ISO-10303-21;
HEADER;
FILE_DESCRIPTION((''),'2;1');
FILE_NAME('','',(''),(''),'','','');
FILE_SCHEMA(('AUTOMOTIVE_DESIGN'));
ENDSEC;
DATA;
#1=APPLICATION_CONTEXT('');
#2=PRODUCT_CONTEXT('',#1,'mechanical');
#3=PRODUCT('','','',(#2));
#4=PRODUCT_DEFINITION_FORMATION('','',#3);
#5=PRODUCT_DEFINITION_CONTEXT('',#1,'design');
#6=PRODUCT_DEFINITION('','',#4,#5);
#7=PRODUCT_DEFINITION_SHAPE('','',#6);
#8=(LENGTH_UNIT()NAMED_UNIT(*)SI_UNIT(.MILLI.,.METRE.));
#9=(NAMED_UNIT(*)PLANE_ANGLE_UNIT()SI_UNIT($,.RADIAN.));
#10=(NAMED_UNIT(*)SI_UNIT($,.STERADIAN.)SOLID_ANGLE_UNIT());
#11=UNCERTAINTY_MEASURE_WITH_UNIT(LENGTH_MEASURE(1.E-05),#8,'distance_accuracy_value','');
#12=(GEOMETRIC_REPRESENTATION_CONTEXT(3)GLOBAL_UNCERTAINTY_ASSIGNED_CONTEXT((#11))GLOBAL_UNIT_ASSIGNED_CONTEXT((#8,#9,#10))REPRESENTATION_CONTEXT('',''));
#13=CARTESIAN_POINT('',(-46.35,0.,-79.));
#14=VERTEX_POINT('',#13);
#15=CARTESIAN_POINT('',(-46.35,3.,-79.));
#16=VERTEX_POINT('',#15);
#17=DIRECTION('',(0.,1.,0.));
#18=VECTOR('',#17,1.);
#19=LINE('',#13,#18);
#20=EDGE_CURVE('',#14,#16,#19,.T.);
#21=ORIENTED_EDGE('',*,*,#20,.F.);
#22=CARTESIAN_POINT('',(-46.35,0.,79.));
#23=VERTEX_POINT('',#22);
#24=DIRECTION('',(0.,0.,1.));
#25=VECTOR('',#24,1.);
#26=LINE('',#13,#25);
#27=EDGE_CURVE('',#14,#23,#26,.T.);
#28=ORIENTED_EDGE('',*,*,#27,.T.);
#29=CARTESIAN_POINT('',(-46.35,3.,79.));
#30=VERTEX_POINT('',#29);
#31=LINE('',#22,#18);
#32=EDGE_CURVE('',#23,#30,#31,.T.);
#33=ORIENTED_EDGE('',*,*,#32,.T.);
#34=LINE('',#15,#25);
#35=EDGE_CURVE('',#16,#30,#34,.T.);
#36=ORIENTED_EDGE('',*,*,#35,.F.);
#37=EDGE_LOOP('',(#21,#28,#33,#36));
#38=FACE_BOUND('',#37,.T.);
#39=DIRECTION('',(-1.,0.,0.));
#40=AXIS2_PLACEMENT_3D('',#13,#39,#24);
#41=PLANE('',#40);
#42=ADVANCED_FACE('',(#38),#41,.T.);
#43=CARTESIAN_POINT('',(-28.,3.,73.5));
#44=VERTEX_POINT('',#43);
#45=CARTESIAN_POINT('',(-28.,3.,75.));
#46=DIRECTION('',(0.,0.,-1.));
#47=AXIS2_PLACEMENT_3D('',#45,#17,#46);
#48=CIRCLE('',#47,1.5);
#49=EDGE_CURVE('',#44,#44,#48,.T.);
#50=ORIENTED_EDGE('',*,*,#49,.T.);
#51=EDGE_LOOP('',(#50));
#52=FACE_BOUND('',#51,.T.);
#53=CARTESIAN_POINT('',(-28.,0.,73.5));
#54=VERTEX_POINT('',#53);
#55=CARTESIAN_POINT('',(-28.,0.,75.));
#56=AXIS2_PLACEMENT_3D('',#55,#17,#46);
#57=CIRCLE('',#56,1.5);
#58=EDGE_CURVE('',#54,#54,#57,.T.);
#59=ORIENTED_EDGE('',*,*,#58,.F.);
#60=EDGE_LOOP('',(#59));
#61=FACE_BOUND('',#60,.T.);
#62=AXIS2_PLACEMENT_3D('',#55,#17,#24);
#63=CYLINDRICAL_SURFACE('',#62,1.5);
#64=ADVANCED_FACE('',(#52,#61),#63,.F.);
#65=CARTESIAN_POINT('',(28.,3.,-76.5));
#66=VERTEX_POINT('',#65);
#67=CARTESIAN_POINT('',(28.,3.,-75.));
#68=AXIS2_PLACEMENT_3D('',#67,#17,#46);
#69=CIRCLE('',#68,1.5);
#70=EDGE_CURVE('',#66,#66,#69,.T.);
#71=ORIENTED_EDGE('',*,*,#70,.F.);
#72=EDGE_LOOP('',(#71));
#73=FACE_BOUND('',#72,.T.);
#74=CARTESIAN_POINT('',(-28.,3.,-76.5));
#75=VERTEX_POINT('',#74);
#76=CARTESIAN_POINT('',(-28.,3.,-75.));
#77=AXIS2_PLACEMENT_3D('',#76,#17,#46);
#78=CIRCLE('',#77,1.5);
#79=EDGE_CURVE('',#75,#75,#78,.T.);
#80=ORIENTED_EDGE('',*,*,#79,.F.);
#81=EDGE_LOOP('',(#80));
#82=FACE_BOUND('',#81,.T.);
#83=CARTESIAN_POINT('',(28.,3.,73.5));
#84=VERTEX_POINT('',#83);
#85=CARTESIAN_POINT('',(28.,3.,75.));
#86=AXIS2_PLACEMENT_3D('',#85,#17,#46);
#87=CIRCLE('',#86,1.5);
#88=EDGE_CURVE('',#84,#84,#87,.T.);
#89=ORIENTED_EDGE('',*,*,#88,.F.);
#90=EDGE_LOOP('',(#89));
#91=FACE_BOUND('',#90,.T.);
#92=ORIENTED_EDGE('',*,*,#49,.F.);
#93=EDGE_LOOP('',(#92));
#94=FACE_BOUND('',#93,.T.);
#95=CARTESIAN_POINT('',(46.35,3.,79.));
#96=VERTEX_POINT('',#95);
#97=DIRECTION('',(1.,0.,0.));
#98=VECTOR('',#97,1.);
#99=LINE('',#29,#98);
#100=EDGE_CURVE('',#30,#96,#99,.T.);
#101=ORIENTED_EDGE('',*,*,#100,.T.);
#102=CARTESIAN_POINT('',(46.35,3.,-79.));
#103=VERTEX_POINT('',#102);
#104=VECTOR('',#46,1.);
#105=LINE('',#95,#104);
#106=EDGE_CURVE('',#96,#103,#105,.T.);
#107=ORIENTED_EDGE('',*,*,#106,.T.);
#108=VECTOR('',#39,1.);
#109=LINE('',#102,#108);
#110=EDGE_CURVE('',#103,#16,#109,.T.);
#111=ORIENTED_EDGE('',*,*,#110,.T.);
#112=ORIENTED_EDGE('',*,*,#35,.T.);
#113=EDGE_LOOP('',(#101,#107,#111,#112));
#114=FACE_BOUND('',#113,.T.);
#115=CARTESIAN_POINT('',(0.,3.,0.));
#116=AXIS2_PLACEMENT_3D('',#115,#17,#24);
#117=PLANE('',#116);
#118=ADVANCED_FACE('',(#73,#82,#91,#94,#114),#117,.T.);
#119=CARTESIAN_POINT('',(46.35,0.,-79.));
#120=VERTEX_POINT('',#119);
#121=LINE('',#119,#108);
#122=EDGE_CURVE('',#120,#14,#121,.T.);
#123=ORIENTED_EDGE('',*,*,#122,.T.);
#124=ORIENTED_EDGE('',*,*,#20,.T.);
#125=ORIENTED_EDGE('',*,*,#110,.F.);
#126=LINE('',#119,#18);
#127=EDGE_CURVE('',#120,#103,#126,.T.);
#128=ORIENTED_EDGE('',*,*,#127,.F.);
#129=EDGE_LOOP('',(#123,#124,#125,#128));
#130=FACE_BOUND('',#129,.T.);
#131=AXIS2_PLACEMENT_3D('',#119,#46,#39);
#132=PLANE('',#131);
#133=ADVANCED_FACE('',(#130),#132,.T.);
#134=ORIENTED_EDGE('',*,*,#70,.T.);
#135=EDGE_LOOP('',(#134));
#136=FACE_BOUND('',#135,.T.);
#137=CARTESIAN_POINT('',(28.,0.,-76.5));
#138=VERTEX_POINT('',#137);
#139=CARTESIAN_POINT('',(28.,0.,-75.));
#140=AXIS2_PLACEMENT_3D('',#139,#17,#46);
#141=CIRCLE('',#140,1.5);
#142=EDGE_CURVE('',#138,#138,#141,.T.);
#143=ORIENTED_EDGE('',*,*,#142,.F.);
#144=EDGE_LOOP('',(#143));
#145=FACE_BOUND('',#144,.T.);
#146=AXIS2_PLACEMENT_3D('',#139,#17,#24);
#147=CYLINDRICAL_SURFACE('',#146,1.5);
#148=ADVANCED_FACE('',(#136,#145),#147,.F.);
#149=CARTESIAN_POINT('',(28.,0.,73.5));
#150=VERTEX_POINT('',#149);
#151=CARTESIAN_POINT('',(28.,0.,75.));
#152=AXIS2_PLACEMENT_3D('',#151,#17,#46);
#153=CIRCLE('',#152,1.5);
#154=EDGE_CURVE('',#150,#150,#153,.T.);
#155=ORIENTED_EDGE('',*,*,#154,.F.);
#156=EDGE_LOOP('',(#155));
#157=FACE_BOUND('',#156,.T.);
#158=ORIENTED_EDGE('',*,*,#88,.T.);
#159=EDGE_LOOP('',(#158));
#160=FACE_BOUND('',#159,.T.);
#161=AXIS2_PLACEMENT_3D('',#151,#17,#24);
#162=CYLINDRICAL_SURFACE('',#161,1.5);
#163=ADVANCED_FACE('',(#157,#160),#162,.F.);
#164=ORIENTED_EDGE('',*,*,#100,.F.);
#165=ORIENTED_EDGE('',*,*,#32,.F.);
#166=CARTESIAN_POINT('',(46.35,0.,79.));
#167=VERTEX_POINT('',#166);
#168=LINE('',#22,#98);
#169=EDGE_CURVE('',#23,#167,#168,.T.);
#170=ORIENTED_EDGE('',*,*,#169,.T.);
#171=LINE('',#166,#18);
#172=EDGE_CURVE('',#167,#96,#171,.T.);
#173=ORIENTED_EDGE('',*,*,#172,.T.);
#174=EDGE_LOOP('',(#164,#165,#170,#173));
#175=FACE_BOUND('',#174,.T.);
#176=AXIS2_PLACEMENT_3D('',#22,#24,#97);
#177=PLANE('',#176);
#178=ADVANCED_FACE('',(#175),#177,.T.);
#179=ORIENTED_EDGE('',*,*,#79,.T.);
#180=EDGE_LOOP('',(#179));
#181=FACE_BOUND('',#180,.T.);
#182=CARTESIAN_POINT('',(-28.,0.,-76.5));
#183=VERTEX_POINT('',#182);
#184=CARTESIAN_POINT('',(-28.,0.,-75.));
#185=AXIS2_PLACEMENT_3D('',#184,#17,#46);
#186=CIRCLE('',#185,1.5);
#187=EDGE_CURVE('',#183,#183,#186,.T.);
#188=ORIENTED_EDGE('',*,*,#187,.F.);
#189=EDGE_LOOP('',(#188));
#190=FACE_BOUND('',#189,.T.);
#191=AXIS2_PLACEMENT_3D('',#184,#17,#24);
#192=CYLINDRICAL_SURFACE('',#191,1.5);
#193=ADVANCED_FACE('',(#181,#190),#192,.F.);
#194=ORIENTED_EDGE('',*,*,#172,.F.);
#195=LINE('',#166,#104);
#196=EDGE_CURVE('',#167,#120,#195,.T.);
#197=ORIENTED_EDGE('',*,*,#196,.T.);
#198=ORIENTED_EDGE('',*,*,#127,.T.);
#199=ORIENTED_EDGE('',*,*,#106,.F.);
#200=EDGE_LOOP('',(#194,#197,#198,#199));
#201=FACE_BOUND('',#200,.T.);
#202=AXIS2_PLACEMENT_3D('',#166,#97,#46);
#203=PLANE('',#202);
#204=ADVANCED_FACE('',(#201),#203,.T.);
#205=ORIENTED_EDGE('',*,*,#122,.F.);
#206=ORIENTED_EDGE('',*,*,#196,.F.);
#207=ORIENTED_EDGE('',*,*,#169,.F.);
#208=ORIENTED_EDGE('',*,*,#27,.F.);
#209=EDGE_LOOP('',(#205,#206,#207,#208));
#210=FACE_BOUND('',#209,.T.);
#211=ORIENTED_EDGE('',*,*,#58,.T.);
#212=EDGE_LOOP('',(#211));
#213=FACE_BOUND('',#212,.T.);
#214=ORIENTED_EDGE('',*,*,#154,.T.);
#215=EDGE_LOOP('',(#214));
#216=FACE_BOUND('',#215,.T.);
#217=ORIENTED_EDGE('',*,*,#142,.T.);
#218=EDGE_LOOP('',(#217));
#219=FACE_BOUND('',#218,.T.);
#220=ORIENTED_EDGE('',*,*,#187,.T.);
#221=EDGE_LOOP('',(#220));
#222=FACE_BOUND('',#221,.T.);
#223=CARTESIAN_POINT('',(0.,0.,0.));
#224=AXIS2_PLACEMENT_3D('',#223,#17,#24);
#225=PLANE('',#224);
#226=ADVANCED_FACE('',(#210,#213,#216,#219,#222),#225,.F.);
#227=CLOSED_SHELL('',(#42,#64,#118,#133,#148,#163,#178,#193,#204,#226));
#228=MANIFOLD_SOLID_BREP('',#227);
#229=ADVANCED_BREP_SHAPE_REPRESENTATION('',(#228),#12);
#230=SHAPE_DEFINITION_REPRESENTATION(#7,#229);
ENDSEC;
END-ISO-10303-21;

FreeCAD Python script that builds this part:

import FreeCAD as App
import Part
import Sketcher
Q = App.Units.Quantity


def add_polygon(sketch, points):
    """Adds a closed chain of lines whose ends are joined by coincident constraints."""
    first, n = sketch.GeometryCount, len(points)
    for a, b in zip(points, points[1:] + points[:1]):
        sketch.addGeometry(Part.LineSegment(App.Vector(*a, 0), App.Vector(*b, 0)), False)
    for i in range(n):
        sketch.addConstraint(Sketcher.Constraint("Coincident", first + i, 2, first + (i + 1) % n, 1))

doc = App.newDocument("Part")
body = doc.addObject("PartDesign::Body", "Body")

# Sketch on XZ plane
sketch1 = body.newObject("Sketcher::SketchObject", "Sketch")
sketch1.AttachmentSupport = (doc.getObject("XZ_Plane"), [""])
sketch1.MapMode = "FlatFace"
sketch1.AttachmentOffset = App.Placement(App.Vector(0, 0, -3), App.Rotation())
add_polygon(sketch1, [(-46.35, -79), (-46.35, 79), (46.35, 79), (46.35, -79)])  # lines 0-3
sketch1.addGeometry(Part.Circle(App.Vector(-28, 75, 0), App.Vector(0, 0, 1), 1.5), False)  # 4
sketch1.addGeometry(Part.Circle(App.Vector(28, 75, 0), App.Vector(0, 0, 1), 1.5), False)  # 5
sketch1.addGeometry(Part.Circle(App.Vector(-28, -75, 0), App.Vector(0, 0, 1), 1.5), False)  # 6
sketch1.addGeometry(Part.Circle(App.Vector(28, -75, 0), App.Vector(0, 0, 1), 1.5), False)  # 7
sketch1.addConstraint(Sketcher.Constraint("Vertical", 0))
sketch1.addConstraint(Sketcher.Constraint("Horizontal", 1))
sketch1.addConstraint(Sketcher.Constraint("Vertical", 2))
sketch1.addConstraint(Sketcher.Constraint("Horizontal", 3))
sketch1.addConstraint(Sketcher.Constraint("Equal", 4, 5))
sketch1.addConstraint(Sketcher.Constraint("Equal", 5, 6))
sketch1.addConstraint(Sketcher.Constraint("Equal", 6, 7))
sketch1.addConstraint(Sketcher.Constraint("Symmetric", 5, 3, 6, 3, -1, 1))
sketch1.addConstraint(Sketcher.Constraint("Symmetric", 4, 3, 7, 3, -1, 1))
sketch1.addConstraint(Sketcher.Constraint("Symmetric", 0, 2, 2, 2, -1, 1))
sketch1.addConstraint(Sketcher.Constraint("Symmetric", 4, 3, 5, 3, -2))
sketch1.addConstraint(Sketcher.Constraint("Diameter", 4, Q("3 mm")))
sketch1.addConstraint(Sketcher.Constraint("DistanceY", 0, 1, 0, 2, Q("158 mm")))
sketch1.addConstraint(Sketcher.Constraint("DistanceX", 1, 1, 1, 2, Q("92.7 mm")))
sketch1.addConstraint(Sketcher.Constraint("DistanceX", 4, 3, -1, 1, Q("28 mm")))
sketch1.addConstraint(Sketcher.Constraint("DistanceY", -1, 1, 4, 3, Q("75 mm")))
pad1 = body.newObject("PartDesign::Pad", "Pad")
pad1.Profile = sketch1
pad1.Length = 3

doc.recompute()
